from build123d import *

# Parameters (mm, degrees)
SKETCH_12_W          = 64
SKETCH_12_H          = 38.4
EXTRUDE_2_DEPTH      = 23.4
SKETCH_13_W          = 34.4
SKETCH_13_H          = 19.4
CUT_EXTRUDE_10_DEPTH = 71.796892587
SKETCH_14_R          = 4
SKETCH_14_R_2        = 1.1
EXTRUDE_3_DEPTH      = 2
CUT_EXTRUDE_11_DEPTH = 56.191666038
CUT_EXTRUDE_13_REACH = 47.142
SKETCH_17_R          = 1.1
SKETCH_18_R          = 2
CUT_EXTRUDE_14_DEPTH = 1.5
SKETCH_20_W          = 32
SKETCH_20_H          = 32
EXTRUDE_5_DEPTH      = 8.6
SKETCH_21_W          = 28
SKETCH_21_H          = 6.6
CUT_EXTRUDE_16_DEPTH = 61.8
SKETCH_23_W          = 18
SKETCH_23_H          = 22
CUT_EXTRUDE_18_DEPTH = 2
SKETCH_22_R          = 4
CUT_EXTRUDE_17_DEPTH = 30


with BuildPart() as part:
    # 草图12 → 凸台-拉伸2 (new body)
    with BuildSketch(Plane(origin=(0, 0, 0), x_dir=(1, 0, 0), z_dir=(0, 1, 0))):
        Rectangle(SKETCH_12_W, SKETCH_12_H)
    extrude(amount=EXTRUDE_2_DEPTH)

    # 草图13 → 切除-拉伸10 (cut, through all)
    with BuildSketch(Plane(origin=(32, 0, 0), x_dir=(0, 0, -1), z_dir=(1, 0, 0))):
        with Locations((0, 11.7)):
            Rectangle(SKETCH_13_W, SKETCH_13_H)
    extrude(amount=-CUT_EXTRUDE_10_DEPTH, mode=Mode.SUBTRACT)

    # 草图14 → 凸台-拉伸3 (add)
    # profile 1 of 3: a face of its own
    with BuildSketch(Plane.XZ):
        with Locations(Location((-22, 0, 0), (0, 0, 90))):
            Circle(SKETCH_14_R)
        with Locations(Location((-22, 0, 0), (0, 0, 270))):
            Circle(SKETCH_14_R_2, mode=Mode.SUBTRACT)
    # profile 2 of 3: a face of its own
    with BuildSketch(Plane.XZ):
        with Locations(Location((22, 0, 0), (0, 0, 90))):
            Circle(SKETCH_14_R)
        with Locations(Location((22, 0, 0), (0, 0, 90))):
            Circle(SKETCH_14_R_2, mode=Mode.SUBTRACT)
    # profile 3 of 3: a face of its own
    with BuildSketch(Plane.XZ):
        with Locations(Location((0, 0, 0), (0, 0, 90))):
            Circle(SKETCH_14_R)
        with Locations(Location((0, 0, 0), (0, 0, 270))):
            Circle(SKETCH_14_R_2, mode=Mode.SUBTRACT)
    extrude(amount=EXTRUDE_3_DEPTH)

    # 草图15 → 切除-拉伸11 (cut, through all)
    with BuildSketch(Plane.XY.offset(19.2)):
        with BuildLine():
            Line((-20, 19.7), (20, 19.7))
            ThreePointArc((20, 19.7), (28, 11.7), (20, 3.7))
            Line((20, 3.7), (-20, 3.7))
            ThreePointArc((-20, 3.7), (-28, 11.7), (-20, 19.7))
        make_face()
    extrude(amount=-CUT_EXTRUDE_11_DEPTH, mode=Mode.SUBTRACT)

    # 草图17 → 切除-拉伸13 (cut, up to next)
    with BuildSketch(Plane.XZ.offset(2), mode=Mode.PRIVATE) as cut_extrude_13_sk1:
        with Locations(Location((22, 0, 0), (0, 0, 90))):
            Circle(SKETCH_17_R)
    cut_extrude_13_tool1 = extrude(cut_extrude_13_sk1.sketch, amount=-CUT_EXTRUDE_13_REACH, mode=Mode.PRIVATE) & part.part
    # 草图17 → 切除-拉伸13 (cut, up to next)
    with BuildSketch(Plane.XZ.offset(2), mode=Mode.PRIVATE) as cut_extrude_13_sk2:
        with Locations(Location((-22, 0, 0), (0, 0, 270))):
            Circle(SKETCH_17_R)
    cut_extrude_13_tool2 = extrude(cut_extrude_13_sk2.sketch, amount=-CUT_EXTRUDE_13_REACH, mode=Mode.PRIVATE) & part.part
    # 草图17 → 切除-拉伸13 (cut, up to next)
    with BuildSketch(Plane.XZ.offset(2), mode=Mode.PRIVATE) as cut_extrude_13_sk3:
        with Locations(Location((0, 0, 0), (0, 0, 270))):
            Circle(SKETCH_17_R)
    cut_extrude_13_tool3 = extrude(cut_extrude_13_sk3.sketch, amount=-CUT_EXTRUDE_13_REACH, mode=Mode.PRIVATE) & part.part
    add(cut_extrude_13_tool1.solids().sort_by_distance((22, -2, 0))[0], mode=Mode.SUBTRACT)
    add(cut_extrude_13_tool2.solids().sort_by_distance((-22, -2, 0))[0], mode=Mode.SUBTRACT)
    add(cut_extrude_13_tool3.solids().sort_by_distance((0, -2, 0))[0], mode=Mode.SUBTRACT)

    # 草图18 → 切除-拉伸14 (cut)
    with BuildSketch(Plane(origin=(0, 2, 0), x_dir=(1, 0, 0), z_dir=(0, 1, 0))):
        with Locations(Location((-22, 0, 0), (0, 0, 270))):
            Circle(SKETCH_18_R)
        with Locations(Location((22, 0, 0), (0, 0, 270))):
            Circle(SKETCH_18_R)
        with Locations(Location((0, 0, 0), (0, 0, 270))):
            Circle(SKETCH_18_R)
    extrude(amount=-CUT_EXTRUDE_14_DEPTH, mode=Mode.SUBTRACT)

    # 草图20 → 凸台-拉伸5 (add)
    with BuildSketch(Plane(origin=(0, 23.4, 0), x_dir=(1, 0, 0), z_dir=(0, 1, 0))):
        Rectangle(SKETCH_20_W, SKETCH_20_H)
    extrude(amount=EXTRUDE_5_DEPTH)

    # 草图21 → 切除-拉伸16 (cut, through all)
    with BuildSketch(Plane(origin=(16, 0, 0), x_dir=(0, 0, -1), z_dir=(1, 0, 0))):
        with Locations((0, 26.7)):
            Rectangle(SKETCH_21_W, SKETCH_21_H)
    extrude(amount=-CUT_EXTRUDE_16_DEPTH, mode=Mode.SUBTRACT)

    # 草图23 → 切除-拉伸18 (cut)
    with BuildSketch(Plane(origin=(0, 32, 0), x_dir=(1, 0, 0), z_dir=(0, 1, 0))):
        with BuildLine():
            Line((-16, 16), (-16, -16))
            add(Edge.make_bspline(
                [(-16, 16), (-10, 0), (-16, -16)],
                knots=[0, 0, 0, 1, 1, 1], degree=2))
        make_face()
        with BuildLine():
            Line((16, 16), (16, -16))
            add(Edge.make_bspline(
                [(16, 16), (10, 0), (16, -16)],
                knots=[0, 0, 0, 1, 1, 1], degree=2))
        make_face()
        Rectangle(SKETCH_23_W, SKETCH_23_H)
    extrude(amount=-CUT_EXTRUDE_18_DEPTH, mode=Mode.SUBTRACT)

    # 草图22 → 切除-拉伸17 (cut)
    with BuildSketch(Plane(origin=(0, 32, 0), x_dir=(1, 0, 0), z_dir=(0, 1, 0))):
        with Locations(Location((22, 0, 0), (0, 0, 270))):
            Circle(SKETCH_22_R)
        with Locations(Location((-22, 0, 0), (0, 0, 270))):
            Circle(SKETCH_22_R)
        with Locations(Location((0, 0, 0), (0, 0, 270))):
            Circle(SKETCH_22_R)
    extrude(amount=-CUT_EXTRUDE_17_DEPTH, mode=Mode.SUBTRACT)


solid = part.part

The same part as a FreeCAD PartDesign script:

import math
import FreeCAD as App
import Part
import Sketcher
from FreeCAD import Vector
Q = App.Units.Quantity

doc = App.newDocument("Part")
body = doc.addObject("PartDesign::Body", "Body")

# Sketch on XZ plane
sketch1 = body.newObject("Sketcher::SketchObject", "Sketch")
sketch1.AttachmentSupport = (doc.getObject("XZ_Plane"), [""])
sketch1.MapMode = "FlatFace"
sketch1.addGeometry([
    Part.LineSegment(Vector(-32, -19, 0), Vector(-32, 19, 0)),
    Part.LineSegment(Vector(-32, 19, 0), Vector(32, 19, 0)),
    Part.LineSegment(Vector(32, 19, 0), Vector(32, -19, 0)),
    Part.LineSegment(Vector(32, -19, 0), Vector(-32, -19, 0)),
], False)
sketch1.addConstraint([
    Sketcher.Constraint("Coincident", 0, 2, 1, 1),
    Sketcher.Constraint("Coincident", 1, 2, 2, 1),
    Sketcher.Constraint("Coincident", 2, 2, 3, 1),
    Sketcher.Constraint("Coincident", 3, 2, 0, 1),
    Sketcher.Constraint("Vertical", 0),
    Sketcher.Constraint("Horizontal", 1),
    Sketcher.Constraint("Vertical", 2),
    Sketcher.Constraint("Horizontal", 3),
    Sketcher.Constraint("Symmetric", 0, 2, 2, 2, -1, 1),
    Sketcher.Constraint("DistanceX", 1, 1, 1, 2, Q("64 mm")),
    Sketcher.Constraint("DistanceY", 0, 1, 0, 2, Q("38.4 mm")),
])
pad1 = body.newObject("PartDesign::Pad", "Pad")
pad1.Profile = sketch1
pad1.Length = 23.4
pad1.Reversed = True

# Sketch on YZ plane
sketch2 = body.newObject("Sketcher::SketchObject", "Sketch001")
sketch2.AttachmentSupport = (doc.getObject("YZ_Plane"), [""])
sketch2.MapMode = "FlatFace"
sketch2.AttachmentOffset = App.Placement(Vector(0, 0, 32), App.Rotation())
sketch2.addGeometry([
    Part.LineSegment(Vector(21, 17, 0), Vector(2, 17, 0)),
    Part.LineSegment(Vector(2, 17, 0), Vector(2, -17, 0)),
    Part.LineSegment(Vector(2, -17, 0), Vector(21, -17, 0)),
    Part.LineSegment(Vector(21, -17, 0), Vector(21, 17, 0)),
], False)
sketch2.addConstraint([
    Sketcher.Constraint("Coincident", 0, 2, 1, 1),
    Sketcher.Constraint("Coincident", 1, 2, 2, 1),
    Sketcher.Constraint("Coincident", 2, 2, 3, 1),
    Sketcher.Constraint("Coincident", 3, 2, 0, 1),
    Sketcher.Constraint("Horizontal", 0),
    Sketcher.Constraint("Vertical", 1),
    Sketcher.Constraint("Horizontal", 2),
    Sketcher.Constraint("Vertical", 3),
    Sketcher.Constraint("DistanceX", 0, 2, 0, 1, Q("19.4 mm")),
    Sketcher.Constraint("DistanceY", 1, 2, 1, 1, Q("34.4 mm")),
    Sketcher.Constraint("DistanceX", -1, 1, 0, 2, Q("2 mm")),
    Sketcher.Constraint("DistanceY", -1, 1, 0, 2, Q("17.2 mm")),
])
pocket1 = body.newObject("PartDesign::Pocket", "Pocket")
pocket1.Profile = sketch2
pocket1.Type = "ThroughAll"

# Sketch on XZ plane
sketch3 = body.newObject("Sketcher::SketchObject", "Sketch002")
sketch3.AttachmentSupport = (doc.getObject("XZ_Plane"), [""])
sketch3.MapMode = "FlatFace"
sketch3.addGeometry([
    Part.Circle(Vector(-22, 0, 0), Vector(0, 0, 1), 4),  # 0
    Part.Circle(Vector(-22, 0, 0), Vector(0, 0, 1), 1.1),  # 1
    Part.Circle(Vector(22, 0, 0), Vector(0, 0, 1), 4),  # 2
    Part.Circle(Vector(22, 0, 0), Vector(0, 0, 1), 1.1),  # 3
    Part.Circle(Vector(0, 0, 0), Vector(0, 0, 1), 4),  # 4
    Part.Circle(Vector(0, 0, 0), Vector(0, 0, 1), 1.1),  # 5
], False)
sketch3.addConstraint([
    Sketcher.Constraint("Coincident", 4, 3, -1, 1),
    Sketcher.Constraint("Coincident", 5, 3, -1, 1),
    Sketcher.Constraint("Coincident", 1, 3, 0, 3),
    Sketcher.Constraint("Coincident", 3, 3, 2, 3),
    Sketcher.Constraint("Equal", 0, 2),
    Sketcher.Constraint("Equal", 1, 3),
    Sketcher.Constraint("Equal", 2, 4),
    Sketcher.Constraint("Equal", 3, 5),
    Sketcher.Constraint("Symmetric", 0, 3, 2, 3, -1, 1),
    Sketcher.Constraint("PointOnObject", 0, 3, -1),
    Sketcher.Constraint("Diameter", 0, Q("8 mm")),
    Sketcher.Constraint("Diameter", 1, Q("2.2 mm")),
    Sketcher.Constraint("DistanceX", 0, 3, -1, 1, Q("22 mm")),
])
pad2 = body.newObject("PartDesign::Pad", "Pad001")
pad2.Profile = sketch3
pad2.Length = 2

# Sketch on XY plane
sketch4 = body.newObject("Sketcher::SketchObject", "Sketch003")
sketch4.AttachmentSupport = (doc.getObject("XY_Plane"), [""])
sketch4.MapMode = "FlatFace"
sketch4.AttachmentOffset = App.Placement(Vector(0, 0, 19.2), App.Rotation())
sketch4.addGeometry([
    Part.LineSegment(Vector(20, 20, 0), Vector(-20, 20, 0)),
    Part.ArcOfCircle(Part.Circle(Vector(-20, 12, 0), Vector(0, 0, 1), 8), math.radians(90), math.radians(270)),
    Part.LineSegment(Vector(-20, 4, 0), Vector(20, 4, 0)),
    Part.ArcOfCircle(Part.Circle(Vector(20, 12, 0), Vector(0, 0, 1), 8), math.radians(-90), math.radians(90)),
], False)
sketch4.addConstraint([
    Sketcher.Constraint("Tangent", 0, 2, 1, 1),
    Sketcher.Constraint("Tangent", 1, 2, 2, 1),
    Sketcher.Constraint("Tangent", 2, 2, 3, 1),
    Sketcher.Constraint("Tangent", 3, 2, 0, 1),
    Sketcher.Constraint("Horizontal", 0),
    Sketcher.Constraint("Horizontal", 2),
    Sketcher.Constraint("Radius", 1, Q("8 mm")),
    Sketcher.Constraint("DistanceX", 0, 2, 0, 1, Q("40 mm")),
    Sketcher.Constraint("DistanceX", 1, 3, -1, 1, Q("20 mm")),
    Sketcher.Constraint("DistanceY", -1, 1, 1, 3, Q("11.7 mm")),
])
pocket2 = body.newObject("PartDesign::Pocket", "Pocket001")
pocket2.Profile = sketch4
pocket2.Type = "ThroughAll"

# Sketch on XZ plane
sketch5 = body.newObject("Sketcher::SketchObject", "Sketch004")
sketch5.AttachmentSupport = (doc.getObject("XZ_Plane"), [""])
sketch5.MapMode = "FlatFace"
sketch5.AttachmentOffset = App.Placement(Vector(0, 0, 2), App.Rotation())
sketch5.addGeometry(Part.Circle(Vector(22, 0, 0), Vector(0, 0, 1), 1.1), False)
sketch5.addConstraint([
    Sketcher.Constraint("PointOnObject", 0, 3, -1),
    Sketcher.Constraint("Diameter", 0, Q("2.2 mm")),
    Sketcher.Constraint("DistanceX", -1, 1, 0, 3, Q("22 mm")),
])
pocket3 = body.newObject("PartDesign::Pocket", "Pocket002")
pocket3.Profile = sketch5
pocket3.Length = 4

# Sketch on XZ plane
sketch6 = body.newObject("Sketcher::SketchObject", "Sketch005")
sketch6.AttachmentSupport = (doc.getObject("XZ_Plane"), [""])
sketch6.MapMode = "FlatFace"
sketch6.AttachmentOffset = App.Placement(Vector(0, 0, 2), App.Rotation())
sketch6.addGeometry(Part.Circle(Vector(-22, 0, 0), Vector(0, 0, 1), 1.1), False)
sketch6.addConstraint([
    Sketcher.Constraint("PointOnObject", 0, 3, -1),
    Sketcher.Constraint("Diameter", 0, Q("2.2 mm")),
    Sketcher.Constraint("DistanceX", 0, 3, -1, 1, Q("22 mm")),
])
pocket4 = body.newObject("PartDesign::Pocket", "Pocket003")
pocket4.Profile = sketch6
pocket4.Length = 4

# Sketch on XZ plane
sketch7 = body.newObject("Sketcher::SketchObject", "Sketch006")
sketch7.AttachmentSupport = (doc.getObject("XZ_Plane"), [""])
sketch7.MapMode = "FlatFace"
sketch7.AttachmentOffset = App.Placement(Vector(0, 0, 2), App.Rotation())
sketch7.addGeometry(Part.Circle(Vector(0, 0, 0), Vector(0, 0, 1), 1.1), False)
sketch7.addConstraint([
    Sketcher.Constraint("Coincident", 0, 3, -1, 1),
    Sketcher.Constraint("Diameter", 0, Q("2.2 mm")),
])
pocket5 = body.newObject("PartDesign::Pocket", "Pocket004")
pocket5.Profile = sketch7
pocket5.Length = 4

# Sketch on XZ plane
sketch8 = body.newObject("Sketcher::SketchObject", "Sketch007")
sketch8.AttachmentSupport = (doc.getObject("XZ_Plane"), [""])
sketch8.MapMode = "FlatFace"
sketch8.AttachmentOffset = App.Placement(Vector(0, 0, -2), App.Rotation())
sketch8.addGeometry([
    Part.Circle(Vector(-22, 0, 0), Vector(0, 0, 1), 2),
    Part.Circle(Vector(22, 0, 0), Vector(0, 0, 1), 2),
    Part.Circle(Vector(0, 0, 0), Vector(0, 0, 1), 2),
], False)
sketch8.addConstraint([
    Sketcher.Constraint("Coincident", 2, 3, -1, 1),
    Sketcher.Constraint("Equal", 0, 1),
    Sketcher.Constraint("Equal", 1, 2),
    Sketcher.Constraint("Symmetric", 0, 3, 1, 3, -1, 1),
    Sketcher.Constraint("PointOnObject", 0, 3, -1),
    Sketcher.Constraint("Diameter", 0, Q("4 mm")),
    Sketcher.Constraint("DistanceX", 0, 3, -1, 1, Q("22 mm")),
])
pocket6 = body.newObject("PartDesign::Pocket", "Pocket005")
pocket6.Profile = sketch8
pocket6.Length = 1.5
pocket6.Reversed = True

# Sketch on XZ plane
sketch9 = body.newObject("Sketcher::SketchObject", "Sketch008")
sketch9.AttachmentSupport = (doc.getObject("XZ_Plane"), [""])
sketch9.MapMode = "FlatFace"
sketch9.AttachmentOffset = App.Placement(Vector(0, 0, -23.4), App.Rotation())
sketch9.addGeometry([
    Part.LineSegment(Vector(-16, -16, 0), Vector(-16, 16, 0)),
    Part.LineSegment(Vector(-16, 16, 0), Vector(16, 16, 0)),
    Part.LineSegment(Vector(16, 16, 0), Vector(16, -16, 0)),
    Part.LineSegment(Vector(16, -16, 0), Vector(-16, -16, 0)),
], False)
sketch9.addConstraint([
    Sketcher.Constraint("Coincident", 0, 2, 1, 1),
    Sketcher.Constraint("Coincident", 1, 2, 2, 1),
    Sketcher.Constraint("Coincident", 2, 2, 3, 1),
    Sketcher.Constraint("Coincident", 3, 2, 0, 1),
    Sketcher.Constraint("Vertical", 0),
    Sketcher.Constraint("Horizontal", 1),
    Sketcher.Constraint("Vertical", 2),
    Sketcher.Constraint("Horizontal", 3),
    Sketcher.Constraint("Symmetric", 0, 2, 2, 2, -1, 1),
    Sketcher.Constraint("Equal", 3, 0),
    Sketcher.Constraint("DistanceX", 1, 1, 1, 2, Q("32 mm")),
])
pad3 = body.newObject("PartDesign::Pad", "Pad002")
pad3.Profile = sketch9
pad3.Length = 8.6
pad3.Reversed = True

# Sketch on YZ plane
sketch10 = body.newObject("Sketcher::SketchObject", "Sketch009")
sketch10.AttachmentSupport = (doc.getObject("YZ_Plane"), [""])
sketch10.MapMode = "FlatFace"
sketch10.AttachmentOffset = App.Placement(Vector(0, 0, 16), App.Rotation())
sketch10.addGeometry([
    Part.LineSegment(Vector(30, 14, 0), Vector(23, 14, 0)),
    Part.LineSegment(Vector(23, 14, 0), Vector(23, -14, 0)),
    Part.LineSegment(Vector(23, -14, 0), Vector(30, -14, 0)),
    Part.LineSegment(Vector(30, -14, 0), Vector(30, 14, 0)),
], False)
sketch10.addConstraint([
    Sketcher.Constraint("Coincident", 0, 2, 1, 1),
    Sketcher.Constraint("Coincident", 1, 2, 2, 1),
    Sketcher.Constraint("Coincident", 2, 2, 3, 1),
    Sketcher.Constraint("Coincident", 3, 2, 0, 1),
    Sketcher.Constraint("Horizontal", 0),
    Sketcher.Constraint("Vertical", 1),
    Sketcher.Constraint("Horizontal", 2),
    Sketcher.Constraint("Vertical", 3),
    Sketcher.Constraint("DistanceY", 1, 2, 1, 1, Q("28 mm")),
    Sketcher.Constraint("DistanceX", 0, 2, 0, 1, Q("6.6 mm")),
    Sketcher.Constraint("DistanceY", -1, 1, 0, 2, Q("14 mm")),
    Sketcher.Constraint("DistanceX", -1, 1, 2, 2, Q("30 mm")),
])
pocket7 = body.newObject("PartDesign::Pocket", "Pocket006")
pocket7.Profile = sketch10
pocket7.Type = "ThroughAll"

# Sketch on XZ plane
sketch11 = body.newObject("Sketcher::SketchObject", "Sketch010")
sketch11.AttachmentSupport = (doc.getObject("XZ_Plane"), [""])
sketch11.MapMode = "FlatFace"
sketch11.AttachmentOffset = App.Placement(Vector(0, 0, -32), App.Rotation())
sketch11.addGeometry([
    Part.LineSegment(Vector(-16, -16, 0), Vector(-16, 16, 0)),  # 0
    Part.BSplineCurve([Vector(-16, -16, 0), Vector(-10, 0, 0), Vector(-16, 16, 0)], [3, 3], [0, 1], False, 2, [1, 1, 1], False),  # 1
    Part.LineSegment(Vector(16, 16, 0), Vector(16, -16, 0)),  # 2
    Part.BSplineCurve([Vector(16, -16, 0), Vector(10, 0, 0), Vector(16, 16, 0)], [3, 3], [0, 1], False, 2, [1, 1, 1], False),  # 3
    Part.LineSegment(Vector(-9, -11, 0), Vector(-9, 11, 0)),  # 4
    Part.LineSegment(Vector(-9, 11, 0), Vector(9, 11, 0)),  # 5
    Part.LineSegment(Vector(9, 11, 0), Vector(9, -11, 0)),  # 6
    Part.LineSegment(Vector(9, -11, 0), Vector(-9, -11, 0)),  # 7
], False)
sketch11.addConstraint([
    Sketcher.Constraint("Block", 1),
    Sketcher.Constraint("Block", 3),
    Sketcher.Constraint("Coincident", 0, 1, 1, 1),
    Sketcher.Constraint("Coincident", 1, 2, 0, 2),
    Sketcher.Constraint("Coincident", 2, 1, 3, 2),
    Sketcher.Constraint("Coincident", 3, 1, 2, 2),
    Sketcher.Constraint("Coincident", 4, 2, 5, 1),
    Sketcher.Constraint("Coincident", 5, 2, 6, 1),
    Sketcher.Constraint("Coincident", 6, 2, 7, 1),
    Sketcher.Constraint("Coincident", 7, 2, 4, 1),
    Sketcher.Constraint("Vertical", 4),
    Sketcher.Constraint("Horizontal", 5),
    Sketcher.Constraint("Vertical", 6),
    Sketcher.Constraint("Horizontal", 7),
    Sketcher.Constraint("Symmetric", 4, 2, 6, 2, -1, 1),
    Sketcher.Constraint("DistanceX", 5, 1, 5, 2, Q("18 mm")),
    Sketcher.Constraint("DistanceY", 4, 1, 4, 2, Q("22 mm")),
])
pocket8 = body.newObject("PartDesign::Pocket", "Pocket007")
pocket8.Profile = sketch11
pocket8.Length = 2
pocket8.Reversed = True

# Sketch on XZ plane
sketch12 = body.newObject("Sketcher::SketchObject", "Sketch011")
sketch12.AttachmentSupport = (doc.getObject("XZ_Plane"), [""])
sketch12.MapMode = "FlatFace"
sketch12.AttachmentOffset = App.Placement(Vector(0, 0, -32), App.Rotation())
sketch12.addGeometry([
    Part.Circle(Vector(22, 0, 0), Vector(0, 0, 1), 4),
    Part.Circle(Vector(-22, 0, 0), Vector(0, 0, 1), 4),
    Part.Circle(Vector(0, 0, 0), Vector(0, 0, 1), 4),
], False)
sketch12.addConstraint([
    Sketcher.Constraint("Coincident", 2, 3, -1, 1),
    Sketcher.Constraint("Equal", 0, 1),
    Sketcher.Constraint("Equal", 1, 2),
    Sketcher.Constraint("Symmetric", 0, 3, 1, 3, -1, 1),
    Sketcher.Constraint("PointOnObject", 0, 3, -1),
    Sketcher.Constraint("Diameter", 0, Q("8 mm")),
    Sketcher.Constraint("DistanceX", -1, 1, 0, 3, Q("22 mm")),
])
pocket9 = body.newObject("PartDesign::Pocket", "Pocket008")
pocket9.Profile = sketch12
pocket9.Length = 30
pocket9.Reversed = True

doc.recompute()
